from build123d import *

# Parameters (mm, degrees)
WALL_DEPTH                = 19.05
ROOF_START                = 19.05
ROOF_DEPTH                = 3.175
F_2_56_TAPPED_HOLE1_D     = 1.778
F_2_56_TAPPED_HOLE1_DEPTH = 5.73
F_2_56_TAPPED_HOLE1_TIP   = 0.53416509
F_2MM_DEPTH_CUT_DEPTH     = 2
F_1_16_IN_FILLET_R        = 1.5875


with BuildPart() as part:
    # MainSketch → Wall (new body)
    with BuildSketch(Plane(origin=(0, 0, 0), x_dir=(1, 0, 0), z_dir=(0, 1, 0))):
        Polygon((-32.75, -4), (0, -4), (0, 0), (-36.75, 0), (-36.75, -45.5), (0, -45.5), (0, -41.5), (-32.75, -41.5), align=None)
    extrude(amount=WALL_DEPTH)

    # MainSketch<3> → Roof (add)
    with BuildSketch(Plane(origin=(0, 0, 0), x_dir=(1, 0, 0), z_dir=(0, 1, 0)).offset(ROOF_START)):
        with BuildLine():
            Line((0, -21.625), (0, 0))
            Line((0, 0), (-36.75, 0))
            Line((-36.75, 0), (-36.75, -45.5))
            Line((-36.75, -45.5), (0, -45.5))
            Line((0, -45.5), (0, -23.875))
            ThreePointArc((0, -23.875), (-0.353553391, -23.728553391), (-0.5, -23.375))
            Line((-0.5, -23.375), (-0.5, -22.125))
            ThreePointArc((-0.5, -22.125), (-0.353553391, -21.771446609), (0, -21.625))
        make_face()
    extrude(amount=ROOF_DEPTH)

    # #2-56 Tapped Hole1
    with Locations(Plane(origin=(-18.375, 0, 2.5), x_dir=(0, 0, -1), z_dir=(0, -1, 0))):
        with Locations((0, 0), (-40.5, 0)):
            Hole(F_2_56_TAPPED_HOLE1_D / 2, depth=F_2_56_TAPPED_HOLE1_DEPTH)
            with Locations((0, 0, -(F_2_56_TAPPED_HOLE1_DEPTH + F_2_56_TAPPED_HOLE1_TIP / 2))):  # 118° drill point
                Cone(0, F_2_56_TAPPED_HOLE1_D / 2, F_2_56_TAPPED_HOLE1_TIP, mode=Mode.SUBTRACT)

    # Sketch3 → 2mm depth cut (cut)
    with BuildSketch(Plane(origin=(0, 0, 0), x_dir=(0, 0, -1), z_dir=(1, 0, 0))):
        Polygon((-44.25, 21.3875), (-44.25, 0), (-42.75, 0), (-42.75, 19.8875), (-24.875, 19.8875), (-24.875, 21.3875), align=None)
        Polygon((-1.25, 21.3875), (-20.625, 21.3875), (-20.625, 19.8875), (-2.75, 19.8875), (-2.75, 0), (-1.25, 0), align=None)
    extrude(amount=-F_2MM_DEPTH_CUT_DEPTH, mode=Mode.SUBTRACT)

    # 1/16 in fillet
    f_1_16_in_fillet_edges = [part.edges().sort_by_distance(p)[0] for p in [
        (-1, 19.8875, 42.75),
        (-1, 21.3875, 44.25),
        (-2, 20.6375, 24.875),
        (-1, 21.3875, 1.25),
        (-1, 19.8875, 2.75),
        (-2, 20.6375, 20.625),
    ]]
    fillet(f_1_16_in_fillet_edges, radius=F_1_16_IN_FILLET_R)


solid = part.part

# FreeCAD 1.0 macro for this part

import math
import FreeCAD as App
import Part
import Sketcher
from FreeCAD import Vector
Q = App.Units.Quantity


def edges_at(feature, points):
    """Names of the edges that pass closest to the given points."""
    edges = feature.Shape.Edges
    near = lambda p: min(range(len(edges)), key=lambda i: edges[i].distToShape(Part.Vertex(*p))[0])
    return sorted({f"Edge{near(p) + 1}" for p in points})


def add_polygon(sketch, points):
    """Adds a closed chain of lines whose ends are joined by coincident constraints."""
    first, n = sketch.GeometryCount, len(points)
    for a, b in zip(points, points[1:] + points[:1]):
        sketch.addGeometry(Part.LineSegment(App.Vector(*a, 0), App.Vector(*b, 0)), False)
    for i in range(n):
        sketch.addConstraint(Sketcher.Constraint("Coincident", first + i, 2, first + (i + 1) % n, 1))

doc = App.newDocument("Part")
body = doc.addObject("PartDesign::Body", "Body")

# Sketch on XZ plane
sketch1 = body.newObject("Sketcher::SketchObject", "Sketch")
sketch1.AttachmentSupport = (doc.getObject("XZ_Plane"), [""])
sketch1.MapMode = "FlatFace"
add_polygon(sketch1, [(-32.75, 4), (0, 4), (0, 0), (-36.75, 0), (-36.75, 45.5), (0, 45.5), (0, 41.5), (-32.75, 41.5)])  # lines 0-7
sketch1.addConstraint(Sketcher.Constraint("Horizontal", 0))
sketch1.addConstraint(Sketcher.Constraint("Vertical", 1))
sketch1.addConstraint(Sketcher.Constraint("Horizontal", 2))
sketch1.addConstraint(Sketcher.Constraint("Vertical", 3))
sketch1.addConstraint(Sketcher.Constraint("Horizontal", 4))
sketch1.addConstraint(Sketcher.Constraint("Vertical", 5))
sketch1.addConstraint(Sketcher.Constraint("Horizontal", 6))
sketch1.addConstraint(Sketcher.Constraint("Vertical", 7))
sketch1.addConstraint(Sketcher.Constraint("Coincident", 1, 2, -1, 1))
sketch1.addConstraint(Sketcher.Constraint("PointOnObject", 4, 2, -2))
sketch1.addConstraint(Sketcher.Constraint("Equal", 1, 5))
sketch1.addConstraint(Sketcher.Constraint("DistanceY", 1, 2, 1, 1, Q("4 mm")))
sketch1.addConstraint(Sketcher.Constraint("DistanceY", 3, 1, 3, 2, Q("45.5 mm")))
sketch1.addConstraint(Sketcher.Constraint("DistanceX", 3, 2, 6, 2, Q("4 mm")))
sketch1.addConstraint(Sketcher.Constraint("DistanceX", 0, 1, 0, 2, Q("32.75 mm")))
pad1 = body.newObject("PartDesign::Pad", "Pad")
pad1.Profile = sketch1
pad1.Length = 19.05
pad1.Reversed = True

# Sketch on XZ plane
sketch2 = body.newObject("Sketcher::SketchObject", "Sketch001")
sketch2.AttachmentSupport = (doc.getObject("XZ_Plane"), [""])
sketch2.MapMode = "FlatFace"
sketch2.AttachmentOffset = App.Placement(Vector(0, 0, -19.05), App.Rotation())
sketch2.addGeometry(Part.LineSegment(Vector(0, 21.625, 0), Vector(0, 0, 0)), False)
sketch2.addGeometry(Part.LineSegment(Vector(0, 0, 0), Vector(-36.75, 0, 0)), False)
sketch2.addGeometry(Part.LineSegment(Vector(-36.75, 0, 0), Vector(-36.75, 45.5, 0)), False)
sketch2.addGeometry(Part.LineSegment(Vector(-36.75, 45.5, 0), Vector(0, 45.5, 0)), False)
sketch2.addGeometry(Part.LineSegment(Vector(0, 45.5, 0), Vector(0, 23.875, 0)), False)
sketch2.addGeometry(Part.ArcOfCircle(Part.Circle(Vector(0, 23.375, 0), Vector(0, 0, 1), 0.5), math.radians(90), math.radians(180)), False)
sketch2.addGeometry(Part.LineSegment(Vector(-0.5, 23.375, 0), Vector(-0.5, 22.125, 0)), False)
sketch2.addGeometry(Part.ArcOfCircle(Part.Circle(Vector(0, 22.125, 0), Vector(0, 0, 1), 0.5), math.radians(180), math.radians(270)), False)
sketch2.addConstraint(Sketcher.Constraint("Coincident", 0, 2, 1, 1))
sketch2.addConstraint(Sketcher.Constraint("Coincident", 1, 2, 2, 1))
sketch2.addConstraint(Sketcher.Constraint("Coincident", 2, 2, 3, 1))
sketch2.addConstraint(Sketcher.Constraint("Coincident", 3, 2, 4, 1))
sketch2.addConstraint(Sketcher.Constraint("Coincident", 4, 2, 5, 1))
sketch2.addConstraint(Sketcher.Constraint("Tangent", 5, 2, 6, 1))
sketch2.addConstraint(Sketcher.Constraint("Tangent", 6, 2, 7, 1))
sketch2.addConstraint(Sketcher.Constraint("Coincident", 7, 2, 0, 1))
sketch2.addConstraint(Sketcher.Constraint("Vertical", 0))
sketch2.addConstraint(Sketcher.Constraint("Horizontal", 1))
sketch2.addConstraint(Sketcher.Constraint("Vertical", 2))
sketch2.addConstraint(Sketcher.Constraint("Horizontal", 3))
sketch2.addConstraint(Sketcher.Constraint("Vertical", 4))
sketch2.addConstraint(Sketcher.Constraint("Vertical", 6))
sketch2.addConstraint(Sketcher.Constraint("Coincident", 0, 2, -1, 1))
sketch2.addConstraint(Sketcher.Constraint("Equal", 5, 7))
sketch2.addConstraint(Sketcher.Constraint("PointOnObject", 5, 3, -2))
sketch2.addConstraint(Sketcher.Constraint("PointOnObject", 3, 2, -2))
sketch2.addConstraint(Sketcher.Constraint("Equal", 0, 4))
sketch2.addConstraint(Sketcher.Constraint("Radius", 5, Q("0.5 mm")))
sketch2.addConstraint(Sketcher.Constraint("DistanceY", 2, 1, 2, 2, Q("45.5 mm")))
sketch2.addConstraint(Sketcher.Constraint("DistanceX", 1, 2, 1, 1, Q("36.75 mm")))
sketch2.addConstraint(Sketcher.Constraint("DistanceY", 6, 2, 6, 1, Q("1.25 mm")))
pad2 = body.newObject("PartDesign::Pad", "Pad001")
pad2.Profile = sketch2
pad2.Length = 3.175
pad2.Reversed = True

# Sketch on XZ plane
sketch3 = body.newObject("Sketcher::SketchObject", "Sketch002")
sketch3.AttachmentSupport = (doc.getObject("XZ_Plane"), [""])
sketch3.MapMode = "FlatFace"
sketch3.addGeometry(Part.Circle(Vector(-18.375, 2.5, 0), Vector(0, 0, 1), 0.889), False)
sketch3.addGeometry(Part.Circle(Vector(-18.375, 43, 0), Vector(0, 0, 1), 0.889), False)
sketch3.addConstraint(Sketcher.Constraint("Equal", 0, 1))
sketch3.addConstraint(Sketcher.Constraint("Vertical", 0, 3, 1, 3))
sketch3.addConstraint(Sketcher.Constraint("Diameter", 0, Q("1.778 mm")))
sketch3.addConstraint(Sketcher.Constraint("DistanceY", -1, 1, 1, 3, Q("43 mm")))
sketch3.addConstraint(Sketcher.Constraint("DistanceY", -1, 1, 0, 3, Q("2.5 mm")))
sketch3.addConstraint(Sketcher.Constraint("DistanceX", 0, 3, -1, 1, Q("18.375 mm")))
doc.recompute()
hole = body.newObject("PartDesign::Hole", "Hole")
hole.Profile = sketch3
hole.ThreadType = "None"
hole.Diameter = 1.778
hole.DepthType = "Dimension"
hole.Depth = 5.73
hole.DrillPoint = "Angled"
hole.DrillPointAngle = 118

# Sketch on YZ plane
sketch4 = body.newObject("Sketcher::SketchObject", "Sketch003")
sketch4.AttachmentSupport = (doc.getObject("YZ_Plane"), [""])
sketch4.MapMode = "FlatFace"
add_polygon(sketch4, [(21.3875, 44.25), (0, 44.25), (0, 42.75), (19.8875, 42.75), (19.8875, 24.875), (21.3875, 24.875)])  # lines 0-5
add_polygon(sketch4, [(21.3875, 1.25), (21.3875, 20.625), (19.8875, 20.625), (19.8875, 2.75), (0, 2.75), (0, 1.25)])  # lines 6-11
sketch4.addConstraint(Sketcher.Constraint("Horizontal", 0))
sketch4.addConstraint(Sketcher.Constraint("Vertical", 1))
sketch4.addConstraint(Sketcher.Constraint("Horizontal", 2))
sketch4.addConstraint(Sketcher.Constraint("Vertical", 3))
sketch4.addConstraint(Sketcher.Constraint("Horizontal", 4))
sketch4.addConstraint(Sketcher.Constraint("Vertical", 5))
sketch4.addConstraint(Sketcher.Constraint("Vertical", 6))
sketch4.addConstraint(Sketcher.Constraint("Horizontal", 7))
sketch4.addConstraint(Sketcher.Constraint("Vertical", 8))
sketch4.addConstraint(Sketcher.Constraint("Horizontal", 9))
sketch4.addConstraint(Sketcher.Constraint("Vertical", 10))
sketch4.addConstraint(Sketcher.Constraint("Horizontal", 11))
sketch4.addConstraint(Sketcher.Constraint("PointOnObject", 0, 2, -2))
sketch4.addConstraint(Sketcher.Constraint("PointOnObject", 9, 2, -2))
sketch4.addConstraint(Sketcher.Constraint("Vertical", 5, 2, 6, 2))
sketch4.addConstraint(Sketcher.Constraint("Vertical", 3, 2, 7, 2))
sketch4.addConstraint(Sketcher.Constraint("Equal", 7, 1))
sketch4.addConstraint(Sketcher.Constraint("Equal", 5, 6))
sketch4.addConstraint(Sketcher.Constraint("Equal", 3, 8))
sketch4.addConstraint(Sketcher.Constraint("DistanceX", 4, 1, 4, 2, Q("1.5 mm")))
sketch4.addConstraint(Sketcher.Constraint("DistanceY", 8, 2, 2, 2, Q("40 mm")))
sketch4.addConstraint(Sketcher.Constraint("DistanceY", 3, 2, 3, 1, Q("17.875 mm")))
sketch4.addConstraint(Sketcher.Constraint("DistanceY", -1, 1, 0, 2, Q("44.25 mm")))
sketch4.addConstraint(Sketcher.Constraint("DistanceX", 0, 2, 0, 1, Q("21.3875 mm")))
pocket1 = body.newObject("PartDesign::Pocket", "Pocket")
pocket1.Profile = sketch4
pocket1.Length = 2
doc.recompute()

fillet = body.newObject("PartDesign::Fillet", "Fillet")
fillet.Base = (pocket1, edges_at(pocket1, [
    (-1, 19.887, 42.75),
    (-1, 21.387, 44.25),
    (-2, 20.637, 24.875),
    (-1, 21.387, 1.25),
    (-1, 19.887, 2.75),
    (-2, 20.637, 20.625),
]))
fillet.Radius = 1.5875

doc.recompute()
